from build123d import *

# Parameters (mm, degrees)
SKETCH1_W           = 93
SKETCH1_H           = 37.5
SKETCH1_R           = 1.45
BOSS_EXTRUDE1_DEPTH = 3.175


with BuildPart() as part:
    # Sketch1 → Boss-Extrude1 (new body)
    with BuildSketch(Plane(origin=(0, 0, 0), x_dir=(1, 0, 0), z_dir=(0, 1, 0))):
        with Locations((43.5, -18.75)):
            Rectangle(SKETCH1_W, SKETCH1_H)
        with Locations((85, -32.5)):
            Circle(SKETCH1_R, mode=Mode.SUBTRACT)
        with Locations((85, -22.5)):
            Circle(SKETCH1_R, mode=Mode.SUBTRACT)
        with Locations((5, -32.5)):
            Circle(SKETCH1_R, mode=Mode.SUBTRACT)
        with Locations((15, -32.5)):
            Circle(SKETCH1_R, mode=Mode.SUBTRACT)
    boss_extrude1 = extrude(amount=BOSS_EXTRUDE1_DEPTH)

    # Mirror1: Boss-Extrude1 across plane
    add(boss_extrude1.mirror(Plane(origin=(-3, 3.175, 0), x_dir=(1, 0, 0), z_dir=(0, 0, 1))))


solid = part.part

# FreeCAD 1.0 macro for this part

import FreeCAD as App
import Part
import Sketcher

V = App.Vector

doc = App.newDocument("Part")
body = doc.addObject("PartDesign::Body", "Body")

# Sketch on XZ plane
sketch1 = body.newObject("Sketcher::SketchObject", "Sketch")
sketch1.AttachmentSupport = (doc.getObject("XZ_Plane"), [""])
sketch1.MapMode = "FlatFace"
sketch1.addGeometry([
    Part.LineSegment(V(-3, 0, 0), V(-3, 37.5, 0)),  # 0
    Part.LineSegment(V(-3, 37.5, 0), V(90, 37.5, 0)),  # 1
    Part.LineSegment(V(90, 37.5, 0), V(90, 0, 0)),  # 2
    Part.LineSegment(V(90, 0, 0), V(-3, 0, 0)),  # 3
    Part.Circle(V(5, 32.5, 0), V(0, 0, 1), 1.45),  # 4
    Part.Circle(V(15, 32.5, 0), V(0, 0, 1), 1.45),  # 5
    Part.Circle(V(85, 32.5, 0), V(0, 0, 1), 1.45),  # 6
    Part.Circle(V(85, 22.5, 0), V(0, 0, 1), 1.45),  # 7
], False)
sketch1.addConstraint([
    Sketcher.Constraint("Coincident", 0, 2, 1, 1),
    Sketcher.Constraint("Coincident", 1, 2, 2, 1),
    Sketcher.Constraint("Coincident", 2, 2, 3, 1),
    Sketcher.Constraint("Coincident", 3, 2, 0, 1),
    Sketcher.Constraint("Vertical", 0),
    Sketcher.Constraint("Horizontal", 1),
    Sketcher.Constraint("Vertical", 2),
    Sketcher.Constraint("Horizontal", 3),
    Sketcher.Constraint("Equal", 4, 5),
    Sketcher.Constraint("Equal", 5, 6),
    Sketcher.Constraint("Equal", 6, 7),
    Sketcher.Constraint("PointOnObject", 2, 2, -1),
    Sketcher.Constraint("Horizontal", 4, 3, 5, 3),
    Sketcher.Constraint("Horizontal", 5, 3, 6, 3),
    Sketcher.Constraint("Vertical", 6, 3, 7, 3),
    Sketcher.Constraint("Diameter", 4, 2.9),
    Sketcher.Constraint("DistanceX", 1, 1, 1, 2, 93.0),
    Sketcher.Constraint("DistanceY", 0, 1, 0, 2, 37.5),
    Sketcher.Constraint("DistanceX", -1, 1, 4, 3, 5.0),
    Sketcher.Constraint("DistanceX", -1, 1, 5, 3, 15.0),
    Sketcher.Constraint("DistanceX", -1, 1, 6, 3, 85.0),
    Sketcher.Constraint("DistanceX", 0, 2, -1, 1, 3.0),
    Sketcher.Constraint("DistanceY", 7, 3, 6, 3, 10.0),
    Sketcher.Constraint("DistanceY", 4, 3, 0, 2, 5.0),
])
pad1 = body.newObject("PartDesign::Pad", "Pad")
pad1.Profile = sketch1
pad1.Length = 3.175
pad1.Reversed = True
doc.recompute()

mirrored = body.newObject("PartDesign::Mirrored", "Mirrored")
mirrored.Originals = [pad1]
mirrored.MirrorPlane = (doc.getObject("XY_Plane"), [""])
body.Tip = mirrored

doc.recompute()
